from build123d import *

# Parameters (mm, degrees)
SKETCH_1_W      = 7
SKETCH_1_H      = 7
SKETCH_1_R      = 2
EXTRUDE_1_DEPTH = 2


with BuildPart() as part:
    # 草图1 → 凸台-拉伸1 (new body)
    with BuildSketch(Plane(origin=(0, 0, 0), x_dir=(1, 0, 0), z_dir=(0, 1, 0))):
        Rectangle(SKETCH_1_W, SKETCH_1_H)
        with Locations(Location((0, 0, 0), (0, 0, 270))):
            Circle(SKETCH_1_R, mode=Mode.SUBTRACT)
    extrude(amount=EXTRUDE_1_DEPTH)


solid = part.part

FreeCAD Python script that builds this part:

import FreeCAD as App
import Part
import Sketcher


def add_polygon(sketch, points):
    """Adds a closed chain of lines whose ends are joined by coincident constraints."""
    first, n = sketch.GeometryCount, len(points)
    for a, b in zip(points, points[1:] + points[:1]):
        sketch.addGeometry(Part.LineSegment(App.Vector(*a, 0), App.Vector(*b, 0)), False)
    for i in range(n):
        sketch.addConstraint(Sketcher.Constraint("Coincident", first + i, 2, first + (i + 1) % n, 1))

doc = App.newDocument("Part")
body = doc.addObject("PartDesign::Body", "Body")

sketch1 = doc.addObject("Sketcher::SketchObject", "Sketch")
body.addObject(sketch1)
sketch1.AttachmentSupport = (doc.XZ_Plane, [""])
sketch1.MapMode = "FlatFace"
add_polygon(sketch1, [(-3.5, -3.5), (-3.5, 3.5), (3.5, 3.5), (3.5, -3.5)])
sketch1.addGeometry(Part.Circle(App.Vector(0, 0, 0), App.Vector(0, 0, 1), 2), False)
sketch1.addConstraint([
    Sketcher.Constraint("Vertical", 0),
    Sketcher.Constraint("Horizontal", 1),
    Sketcher.Constraint("Vertical", 2),
    Sketcher.Constraint("Horizontal", 3),
    Sketcher.Constraint("Coincident", 4, 3, -1, 1),
    Sketcher.Constraint("Symmetric", 0, 2, 2, 2, -1, 1),
    Sketcher.Constraint("Equal", 3, 0),
    Sketcher.Constraint("Diameter", 4, 4.0),
    Sketcher.Constraint("DistanceX", 1, 1, 1, 2, 7.0),
])
pad1 = doc.addObject("PartDesign::Pad", "Pad")
body.addObject(pad1)
pad1.Profile = sketch1
pad1.Length = 2
pad1.Reversed = True

doc.recompute()
